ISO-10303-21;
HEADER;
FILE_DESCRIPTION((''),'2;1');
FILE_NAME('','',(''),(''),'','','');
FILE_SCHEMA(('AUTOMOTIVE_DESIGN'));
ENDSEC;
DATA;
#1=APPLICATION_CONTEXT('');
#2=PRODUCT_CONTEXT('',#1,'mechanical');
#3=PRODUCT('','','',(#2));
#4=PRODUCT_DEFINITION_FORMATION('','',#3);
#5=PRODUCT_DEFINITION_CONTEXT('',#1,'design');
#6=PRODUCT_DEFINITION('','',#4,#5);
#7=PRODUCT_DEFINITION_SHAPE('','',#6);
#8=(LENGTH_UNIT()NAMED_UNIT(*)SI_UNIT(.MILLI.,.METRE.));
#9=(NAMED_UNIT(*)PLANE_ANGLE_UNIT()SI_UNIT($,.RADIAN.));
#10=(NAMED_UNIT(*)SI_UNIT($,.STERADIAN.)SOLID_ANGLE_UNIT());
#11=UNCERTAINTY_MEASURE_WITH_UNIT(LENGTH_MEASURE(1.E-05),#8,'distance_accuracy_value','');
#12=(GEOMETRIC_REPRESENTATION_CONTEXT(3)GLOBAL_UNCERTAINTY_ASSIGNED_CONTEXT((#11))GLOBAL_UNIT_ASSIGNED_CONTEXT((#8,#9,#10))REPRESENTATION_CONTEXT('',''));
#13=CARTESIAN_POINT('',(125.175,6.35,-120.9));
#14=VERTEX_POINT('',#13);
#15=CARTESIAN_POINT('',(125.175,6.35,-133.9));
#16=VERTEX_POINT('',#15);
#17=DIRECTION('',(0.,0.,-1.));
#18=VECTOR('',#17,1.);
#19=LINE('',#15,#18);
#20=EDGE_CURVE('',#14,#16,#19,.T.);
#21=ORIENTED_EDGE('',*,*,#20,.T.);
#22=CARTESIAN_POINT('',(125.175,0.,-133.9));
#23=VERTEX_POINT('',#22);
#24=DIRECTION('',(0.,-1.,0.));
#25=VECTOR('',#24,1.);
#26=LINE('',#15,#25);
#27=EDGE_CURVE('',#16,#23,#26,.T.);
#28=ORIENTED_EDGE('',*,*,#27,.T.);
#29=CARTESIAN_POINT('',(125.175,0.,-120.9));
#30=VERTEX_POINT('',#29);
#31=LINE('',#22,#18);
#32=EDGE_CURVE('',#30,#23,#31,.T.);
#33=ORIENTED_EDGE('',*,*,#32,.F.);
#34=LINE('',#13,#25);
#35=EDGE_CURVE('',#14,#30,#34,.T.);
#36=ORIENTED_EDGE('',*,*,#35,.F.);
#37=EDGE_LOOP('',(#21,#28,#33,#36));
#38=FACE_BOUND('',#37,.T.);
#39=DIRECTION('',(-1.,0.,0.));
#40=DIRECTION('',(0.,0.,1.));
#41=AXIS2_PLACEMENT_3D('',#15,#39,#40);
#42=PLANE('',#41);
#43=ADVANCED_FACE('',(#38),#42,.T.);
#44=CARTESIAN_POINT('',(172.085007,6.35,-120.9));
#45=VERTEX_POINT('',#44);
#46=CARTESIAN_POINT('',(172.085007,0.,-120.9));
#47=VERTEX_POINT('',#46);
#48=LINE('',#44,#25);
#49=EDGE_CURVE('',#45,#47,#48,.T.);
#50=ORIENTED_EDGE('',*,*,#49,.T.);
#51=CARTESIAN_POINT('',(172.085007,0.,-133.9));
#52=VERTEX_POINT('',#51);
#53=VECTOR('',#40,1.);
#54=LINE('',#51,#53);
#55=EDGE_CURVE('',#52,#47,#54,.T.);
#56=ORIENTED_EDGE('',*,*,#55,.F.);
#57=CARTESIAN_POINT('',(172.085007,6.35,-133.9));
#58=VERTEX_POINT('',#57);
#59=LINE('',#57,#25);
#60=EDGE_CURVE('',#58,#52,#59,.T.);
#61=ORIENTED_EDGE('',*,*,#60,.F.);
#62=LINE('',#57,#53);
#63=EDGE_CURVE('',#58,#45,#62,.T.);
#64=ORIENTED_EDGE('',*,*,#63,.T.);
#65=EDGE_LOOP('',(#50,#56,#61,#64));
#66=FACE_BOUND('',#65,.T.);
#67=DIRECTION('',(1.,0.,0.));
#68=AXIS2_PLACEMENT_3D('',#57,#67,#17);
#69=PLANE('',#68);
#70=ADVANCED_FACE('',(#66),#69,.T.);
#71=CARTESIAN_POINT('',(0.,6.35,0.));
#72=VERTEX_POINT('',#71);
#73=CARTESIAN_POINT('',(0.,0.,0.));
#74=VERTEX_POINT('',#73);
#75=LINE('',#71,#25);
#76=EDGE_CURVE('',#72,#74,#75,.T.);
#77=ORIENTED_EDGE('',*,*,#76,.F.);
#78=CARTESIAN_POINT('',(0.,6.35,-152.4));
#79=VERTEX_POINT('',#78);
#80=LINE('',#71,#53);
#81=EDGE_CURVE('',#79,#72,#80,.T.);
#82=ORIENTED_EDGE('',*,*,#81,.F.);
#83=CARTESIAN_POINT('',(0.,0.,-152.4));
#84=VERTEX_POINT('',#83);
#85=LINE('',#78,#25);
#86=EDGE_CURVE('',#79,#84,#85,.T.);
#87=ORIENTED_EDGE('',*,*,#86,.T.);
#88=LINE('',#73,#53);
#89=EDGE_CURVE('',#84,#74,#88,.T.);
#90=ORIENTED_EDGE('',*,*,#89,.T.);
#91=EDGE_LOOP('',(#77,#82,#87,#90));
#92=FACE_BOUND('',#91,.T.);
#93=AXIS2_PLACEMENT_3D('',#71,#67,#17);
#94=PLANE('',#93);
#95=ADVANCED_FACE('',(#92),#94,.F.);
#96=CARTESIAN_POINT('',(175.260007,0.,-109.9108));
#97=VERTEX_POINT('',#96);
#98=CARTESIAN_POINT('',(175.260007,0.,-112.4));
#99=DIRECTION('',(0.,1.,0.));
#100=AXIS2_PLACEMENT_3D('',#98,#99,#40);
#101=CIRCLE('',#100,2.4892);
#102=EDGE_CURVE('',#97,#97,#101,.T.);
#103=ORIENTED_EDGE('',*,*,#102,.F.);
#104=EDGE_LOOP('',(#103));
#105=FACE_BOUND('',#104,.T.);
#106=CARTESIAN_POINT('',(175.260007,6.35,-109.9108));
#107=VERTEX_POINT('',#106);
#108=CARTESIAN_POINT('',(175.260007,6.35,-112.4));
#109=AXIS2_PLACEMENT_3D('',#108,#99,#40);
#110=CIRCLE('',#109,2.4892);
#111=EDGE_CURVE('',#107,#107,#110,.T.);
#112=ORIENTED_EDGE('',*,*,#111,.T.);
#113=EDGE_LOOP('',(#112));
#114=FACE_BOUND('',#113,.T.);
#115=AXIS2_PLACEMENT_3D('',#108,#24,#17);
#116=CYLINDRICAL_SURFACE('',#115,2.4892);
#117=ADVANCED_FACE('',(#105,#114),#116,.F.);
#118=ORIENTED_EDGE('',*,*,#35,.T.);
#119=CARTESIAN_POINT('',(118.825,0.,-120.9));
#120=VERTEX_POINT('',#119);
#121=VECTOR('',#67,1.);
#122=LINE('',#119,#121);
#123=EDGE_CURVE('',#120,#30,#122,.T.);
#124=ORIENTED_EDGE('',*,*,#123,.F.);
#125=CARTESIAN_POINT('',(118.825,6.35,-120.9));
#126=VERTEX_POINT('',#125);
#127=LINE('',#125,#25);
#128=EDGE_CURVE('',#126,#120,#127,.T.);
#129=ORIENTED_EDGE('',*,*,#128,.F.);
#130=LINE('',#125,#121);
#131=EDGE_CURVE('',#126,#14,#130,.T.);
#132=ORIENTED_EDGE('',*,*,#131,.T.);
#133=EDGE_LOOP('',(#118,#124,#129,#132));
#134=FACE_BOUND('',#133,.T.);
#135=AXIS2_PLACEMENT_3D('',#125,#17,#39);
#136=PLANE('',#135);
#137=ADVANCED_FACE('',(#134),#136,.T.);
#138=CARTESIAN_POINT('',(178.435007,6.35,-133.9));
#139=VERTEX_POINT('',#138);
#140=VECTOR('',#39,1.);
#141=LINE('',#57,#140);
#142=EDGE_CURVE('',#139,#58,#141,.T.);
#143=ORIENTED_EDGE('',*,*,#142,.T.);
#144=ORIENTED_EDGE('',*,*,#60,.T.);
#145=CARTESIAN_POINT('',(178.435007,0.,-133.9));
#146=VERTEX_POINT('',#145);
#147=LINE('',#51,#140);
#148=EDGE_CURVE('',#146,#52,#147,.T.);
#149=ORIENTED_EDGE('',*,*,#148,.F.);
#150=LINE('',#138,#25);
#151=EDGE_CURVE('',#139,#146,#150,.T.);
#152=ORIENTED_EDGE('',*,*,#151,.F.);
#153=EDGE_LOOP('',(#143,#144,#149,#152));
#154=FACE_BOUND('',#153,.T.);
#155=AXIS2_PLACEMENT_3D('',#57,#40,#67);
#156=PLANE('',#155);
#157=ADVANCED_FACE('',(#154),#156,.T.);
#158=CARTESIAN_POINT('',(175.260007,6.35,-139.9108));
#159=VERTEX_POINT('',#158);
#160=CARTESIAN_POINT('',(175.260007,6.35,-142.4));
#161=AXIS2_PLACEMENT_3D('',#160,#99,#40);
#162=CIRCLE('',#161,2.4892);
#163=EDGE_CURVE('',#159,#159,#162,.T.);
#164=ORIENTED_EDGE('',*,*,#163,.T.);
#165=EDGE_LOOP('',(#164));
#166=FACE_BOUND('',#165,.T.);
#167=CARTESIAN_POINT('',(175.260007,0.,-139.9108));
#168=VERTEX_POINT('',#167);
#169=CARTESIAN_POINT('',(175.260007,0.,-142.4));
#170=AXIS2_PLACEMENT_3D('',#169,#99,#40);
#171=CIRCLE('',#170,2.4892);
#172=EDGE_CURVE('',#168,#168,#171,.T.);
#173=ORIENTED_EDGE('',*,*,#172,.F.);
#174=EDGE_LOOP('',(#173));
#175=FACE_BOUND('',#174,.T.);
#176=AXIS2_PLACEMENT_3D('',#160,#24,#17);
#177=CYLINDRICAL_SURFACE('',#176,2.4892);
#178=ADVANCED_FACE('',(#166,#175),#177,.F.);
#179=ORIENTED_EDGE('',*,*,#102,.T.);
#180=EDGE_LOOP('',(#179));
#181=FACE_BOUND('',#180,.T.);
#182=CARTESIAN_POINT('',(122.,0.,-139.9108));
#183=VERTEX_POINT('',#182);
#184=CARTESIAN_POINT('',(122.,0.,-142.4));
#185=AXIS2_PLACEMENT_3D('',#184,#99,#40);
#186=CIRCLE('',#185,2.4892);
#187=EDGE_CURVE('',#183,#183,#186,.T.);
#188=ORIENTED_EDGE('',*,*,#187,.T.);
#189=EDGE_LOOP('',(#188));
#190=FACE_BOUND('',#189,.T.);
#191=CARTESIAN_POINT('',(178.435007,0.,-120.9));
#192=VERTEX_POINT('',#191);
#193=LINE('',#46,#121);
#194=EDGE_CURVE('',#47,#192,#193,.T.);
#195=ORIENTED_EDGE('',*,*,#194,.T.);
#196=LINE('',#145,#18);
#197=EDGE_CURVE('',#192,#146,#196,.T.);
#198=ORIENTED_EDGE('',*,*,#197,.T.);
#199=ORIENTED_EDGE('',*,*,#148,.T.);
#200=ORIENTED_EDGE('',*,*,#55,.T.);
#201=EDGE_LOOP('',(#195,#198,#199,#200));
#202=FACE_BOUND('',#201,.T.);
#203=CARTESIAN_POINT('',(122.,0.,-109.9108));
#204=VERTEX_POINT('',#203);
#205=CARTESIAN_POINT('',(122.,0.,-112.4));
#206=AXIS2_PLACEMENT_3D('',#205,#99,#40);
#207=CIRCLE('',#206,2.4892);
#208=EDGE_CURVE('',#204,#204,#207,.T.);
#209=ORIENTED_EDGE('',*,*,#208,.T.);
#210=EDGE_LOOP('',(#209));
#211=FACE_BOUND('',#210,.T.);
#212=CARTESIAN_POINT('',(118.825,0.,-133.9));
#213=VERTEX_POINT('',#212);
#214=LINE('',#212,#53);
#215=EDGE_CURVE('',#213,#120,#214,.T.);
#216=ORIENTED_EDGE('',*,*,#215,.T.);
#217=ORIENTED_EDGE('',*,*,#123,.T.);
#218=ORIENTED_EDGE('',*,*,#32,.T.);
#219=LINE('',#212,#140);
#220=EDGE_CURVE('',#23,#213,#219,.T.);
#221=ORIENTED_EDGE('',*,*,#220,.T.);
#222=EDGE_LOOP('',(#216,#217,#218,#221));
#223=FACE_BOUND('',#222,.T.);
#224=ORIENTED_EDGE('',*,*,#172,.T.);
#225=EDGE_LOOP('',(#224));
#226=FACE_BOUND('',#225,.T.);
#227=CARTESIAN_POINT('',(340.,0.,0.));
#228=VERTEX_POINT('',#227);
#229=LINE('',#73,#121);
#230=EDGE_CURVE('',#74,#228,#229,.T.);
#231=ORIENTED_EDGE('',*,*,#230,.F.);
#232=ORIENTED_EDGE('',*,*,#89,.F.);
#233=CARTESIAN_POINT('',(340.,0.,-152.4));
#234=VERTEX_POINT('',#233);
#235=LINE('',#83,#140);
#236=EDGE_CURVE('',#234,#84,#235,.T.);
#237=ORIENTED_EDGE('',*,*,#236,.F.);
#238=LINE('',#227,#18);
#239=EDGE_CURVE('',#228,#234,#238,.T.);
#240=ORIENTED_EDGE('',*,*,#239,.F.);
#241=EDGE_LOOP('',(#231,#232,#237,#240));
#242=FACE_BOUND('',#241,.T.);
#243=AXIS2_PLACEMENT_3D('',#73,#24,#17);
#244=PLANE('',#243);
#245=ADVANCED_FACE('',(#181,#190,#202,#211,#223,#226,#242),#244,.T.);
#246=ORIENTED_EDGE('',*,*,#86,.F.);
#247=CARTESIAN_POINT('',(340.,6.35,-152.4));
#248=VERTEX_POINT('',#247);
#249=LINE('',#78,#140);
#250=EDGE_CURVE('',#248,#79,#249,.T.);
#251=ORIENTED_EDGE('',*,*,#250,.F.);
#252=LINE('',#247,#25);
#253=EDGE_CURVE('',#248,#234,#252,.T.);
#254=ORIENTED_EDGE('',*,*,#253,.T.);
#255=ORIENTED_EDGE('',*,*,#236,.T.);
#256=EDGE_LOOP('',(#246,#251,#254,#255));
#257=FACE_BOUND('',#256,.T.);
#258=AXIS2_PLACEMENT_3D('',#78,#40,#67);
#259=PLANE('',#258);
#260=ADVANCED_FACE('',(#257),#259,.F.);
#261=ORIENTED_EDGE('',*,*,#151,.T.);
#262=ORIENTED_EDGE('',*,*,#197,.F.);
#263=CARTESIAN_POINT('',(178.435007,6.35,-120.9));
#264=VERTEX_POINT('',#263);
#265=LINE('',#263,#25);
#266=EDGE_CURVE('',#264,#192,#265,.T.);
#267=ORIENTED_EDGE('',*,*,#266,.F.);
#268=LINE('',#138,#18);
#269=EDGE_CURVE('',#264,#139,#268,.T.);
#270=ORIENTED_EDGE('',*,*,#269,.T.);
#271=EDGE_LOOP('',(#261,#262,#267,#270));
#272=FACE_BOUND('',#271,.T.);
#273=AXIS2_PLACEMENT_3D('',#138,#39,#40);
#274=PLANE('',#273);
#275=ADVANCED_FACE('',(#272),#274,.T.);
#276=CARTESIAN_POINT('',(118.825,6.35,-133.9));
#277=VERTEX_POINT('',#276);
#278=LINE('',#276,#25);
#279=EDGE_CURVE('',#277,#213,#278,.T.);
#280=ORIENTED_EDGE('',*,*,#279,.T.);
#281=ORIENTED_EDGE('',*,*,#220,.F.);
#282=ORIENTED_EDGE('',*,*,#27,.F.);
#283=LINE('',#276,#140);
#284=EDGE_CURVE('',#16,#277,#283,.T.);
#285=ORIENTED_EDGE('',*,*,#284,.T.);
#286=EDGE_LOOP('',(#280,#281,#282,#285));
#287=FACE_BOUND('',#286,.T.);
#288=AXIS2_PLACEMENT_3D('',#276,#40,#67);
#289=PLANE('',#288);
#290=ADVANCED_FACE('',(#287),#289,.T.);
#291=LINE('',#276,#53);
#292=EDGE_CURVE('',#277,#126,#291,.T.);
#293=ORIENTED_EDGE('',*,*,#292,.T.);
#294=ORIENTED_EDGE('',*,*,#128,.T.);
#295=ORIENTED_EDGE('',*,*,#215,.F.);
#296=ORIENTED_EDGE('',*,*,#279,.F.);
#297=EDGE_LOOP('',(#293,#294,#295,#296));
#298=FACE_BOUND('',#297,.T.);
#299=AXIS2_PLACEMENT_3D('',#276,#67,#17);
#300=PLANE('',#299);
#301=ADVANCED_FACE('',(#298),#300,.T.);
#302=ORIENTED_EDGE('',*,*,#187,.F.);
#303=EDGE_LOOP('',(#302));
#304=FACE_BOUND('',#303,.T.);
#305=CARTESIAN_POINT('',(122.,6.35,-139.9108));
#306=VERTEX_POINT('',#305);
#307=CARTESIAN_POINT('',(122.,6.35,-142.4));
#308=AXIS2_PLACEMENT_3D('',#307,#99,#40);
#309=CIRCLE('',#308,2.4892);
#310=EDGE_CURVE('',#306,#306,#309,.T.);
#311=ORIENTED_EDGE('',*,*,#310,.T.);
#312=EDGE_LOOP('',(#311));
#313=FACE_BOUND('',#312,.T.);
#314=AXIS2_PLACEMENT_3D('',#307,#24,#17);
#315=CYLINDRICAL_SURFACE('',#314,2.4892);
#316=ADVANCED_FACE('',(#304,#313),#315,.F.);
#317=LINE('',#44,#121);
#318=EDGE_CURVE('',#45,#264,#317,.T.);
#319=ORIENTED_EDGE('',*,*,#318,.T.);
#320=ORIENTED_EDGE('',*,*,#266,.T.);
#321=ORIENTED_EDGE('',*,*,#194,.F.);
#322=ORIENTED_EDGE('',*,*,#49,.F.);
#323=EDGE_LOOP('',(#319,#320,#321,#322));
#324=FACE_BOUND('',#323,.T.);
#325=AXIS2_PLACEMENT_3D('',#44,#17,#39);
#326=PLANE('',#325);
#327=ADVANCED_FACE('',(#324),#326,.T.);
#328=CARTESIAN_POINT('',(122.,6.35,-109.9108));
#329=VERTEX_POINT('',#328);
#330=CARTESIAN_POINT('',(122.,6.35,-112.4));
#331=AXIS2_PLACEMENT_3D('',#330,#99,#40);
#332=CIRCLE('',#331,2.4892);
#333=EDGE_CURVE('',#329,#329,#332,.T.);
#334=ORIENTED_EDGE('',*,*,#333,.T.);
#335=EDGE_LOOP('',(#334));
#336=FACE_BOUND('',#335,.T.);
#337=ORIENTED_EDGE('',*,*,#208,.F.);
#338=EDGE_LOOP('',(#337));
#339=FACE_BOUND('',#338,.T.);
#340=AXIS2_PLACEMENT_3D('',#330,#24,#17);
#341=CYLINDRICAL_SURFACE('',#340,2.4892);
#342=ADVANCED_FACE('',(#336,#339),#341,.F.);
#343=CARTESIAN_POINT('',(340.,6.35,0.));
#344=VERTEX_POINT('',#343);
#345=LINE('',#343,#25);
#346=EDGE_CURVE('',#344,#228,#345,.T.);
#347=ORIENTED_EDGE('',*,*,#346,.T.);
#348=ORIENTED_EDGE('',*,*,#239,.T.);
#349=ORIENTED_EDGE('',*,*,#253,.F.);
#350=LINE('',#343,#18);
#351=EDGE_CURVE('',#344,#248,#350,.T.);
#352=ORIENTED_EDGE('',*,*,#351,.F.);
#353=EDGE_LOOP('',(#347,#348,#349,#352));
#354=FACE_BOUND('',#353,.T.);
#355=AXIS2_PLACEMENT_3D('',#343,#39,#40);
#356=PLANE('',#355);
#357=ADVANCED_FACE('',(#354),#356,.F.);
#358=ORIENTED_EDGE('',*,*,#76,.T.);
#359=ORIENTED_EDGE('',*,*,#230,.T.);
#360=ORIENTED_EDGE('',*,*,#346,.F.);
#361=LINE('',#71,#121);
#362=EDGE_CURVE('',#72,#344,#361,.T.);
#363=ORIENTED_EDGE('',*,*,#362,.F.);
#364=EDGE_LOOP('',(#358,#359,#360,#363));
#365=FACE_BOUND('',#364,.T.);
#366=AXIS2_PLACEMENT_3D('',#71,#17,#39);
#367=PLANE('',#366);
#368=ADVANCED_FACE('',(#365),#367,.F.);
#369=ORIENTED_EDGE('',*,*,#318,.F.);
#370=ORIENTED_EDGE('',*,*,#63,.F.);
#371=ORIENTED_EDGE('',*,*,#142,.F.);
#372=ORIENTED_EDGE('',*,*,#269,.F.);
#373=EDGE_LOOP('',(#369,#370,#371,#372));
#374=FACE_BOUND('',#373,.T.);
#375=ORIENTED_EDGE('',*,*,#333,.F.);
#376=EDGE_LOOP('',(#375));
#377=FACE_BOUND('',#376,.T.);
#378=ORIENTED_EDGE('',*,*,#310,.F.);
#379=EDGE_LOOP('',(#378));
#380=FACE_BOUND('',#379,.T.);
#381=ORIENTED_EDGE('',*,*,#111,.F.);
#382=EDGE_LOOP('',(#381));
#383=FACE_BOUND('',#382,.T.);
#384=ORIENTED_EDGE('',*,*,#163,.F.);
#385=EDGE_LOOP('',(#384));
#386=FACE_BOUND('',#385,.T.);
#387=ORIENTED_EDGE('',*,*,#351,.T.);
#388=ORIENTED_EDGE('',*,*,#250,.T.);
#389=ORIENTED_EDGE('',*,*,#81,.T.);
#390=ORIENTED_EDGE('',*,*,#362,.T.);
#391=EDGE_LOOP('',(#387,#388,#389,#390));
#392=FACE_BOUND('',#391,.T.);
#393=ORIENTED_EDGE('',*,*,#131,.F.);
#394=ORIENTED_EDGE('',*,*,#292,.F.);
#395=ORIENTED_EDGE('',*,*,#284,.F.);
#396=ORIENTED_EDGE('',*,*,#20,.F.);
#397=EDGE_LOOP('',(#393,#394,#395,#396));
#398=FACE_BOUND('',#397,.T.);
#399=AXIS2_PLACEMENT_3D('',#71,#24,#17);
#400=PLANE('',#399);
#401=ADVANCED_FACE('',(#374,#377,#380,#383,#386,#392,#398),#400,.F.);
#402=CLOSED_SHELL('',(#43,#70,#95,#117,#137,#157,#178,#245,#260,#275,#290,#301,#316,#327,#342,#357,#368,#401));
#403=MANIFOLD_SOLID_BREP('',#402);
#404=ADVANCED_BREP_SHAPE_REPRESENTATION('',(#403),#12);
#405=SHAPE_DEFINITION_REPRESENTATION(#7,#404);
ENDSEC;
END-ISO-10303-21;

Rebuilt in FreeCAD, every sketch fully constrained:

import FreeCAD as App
import Part
import Sketcher

V = App.Vector
Q = App.Units.Quantity


def add_polygon(sketch, points):
    """Adds a closed chain of lines whose ends are joined by coincident constraints."""
    first, n = sketch.GeometryCount, len(points)
    for a, b in zip(points, points[1:] + points[:1]):
        sketch.addGeometry(Part.LineSegment(App.Vector(*a, 0), App.Vector(*b, 0)), False)
    for i in range(n):
        sketch.addConstraint(Sketcher.Constraint("Coincident", first + i, 2, first + (i + 1) % n, 1))

doc = App.newDocument("Part")
body = doc.addObject("PartDesign::Body", "Body")

sketch1 = doc.addObject("Sketcher::SketchObject", "Sketch")
body.addObject(sketch1)
sketch1.AttachmentSupport = (doc.XZ_Plane, [""])
sketch1.MapMode = "FlatFace"
add_polygon(sketch1, [(0, -152.4), (0, 0), (340, 0), (340, -152.4)])
sketch1.addGeometry(Part.Circle(V(122, -112.4, 0), V(0, 0, 1), 2.5), False)
add_polygon(sketch1, [(125.2, -120.9), (118.8, -120.9), (118.8, -133.9), (125.2, -133.9)])
sketch1.addGeometry(Part.Circle(V(175.3, -112.4, 0), V(0, 0, 1), 2.5), False)
add_polygon(sketch1, [(178.4, -120.9), (172.1, -120.9), (172.1, -133.9), (178.4, -133.9)])
sketch1.addGeometry(Part.Circle(V(122, -142.4, 0), V(0, 0, 1), 2.5), False)
sketch1.addGeometry(Part.Circle(V(175.3, -142.4, 0), V(0, 0, 1), 2.5), False)
sketch1.addConstraint([
    Sketcher.Constraint("Vertical", 0),
    Sketcher.Constraint("Horizontal", 1),
    Sketcher.Constraint("Vertical", 2),
    Sketcher.Constraint("Horizontal", 3),
    Sketcher.Constraint("Horizontal", 5),
    Sketcher.Constraint("Vertical", 6),
    Sketcher.Constraint("Horizontal", 7),
    Sketcher.Constraint("Vertical", 8),
    Sketcher.Constraint("Horizontal", 10),
    Sketcher.Constraint("Vertical", 11),
    Sketcher.Constraint("Horizontal", 12),
    Sketcher.Constraint("Vertical", 13),
    Sketcher.Constraint("Coincident", 0, 2, -1, 1),
    Sketcher.Constraint("Equal", 4, 9),
    Sketcher.Constraint("Equal", 9, 14),
    Sketcher.Constraint("Equal", 14, 15),
    Sketcher.Constraint("Horizontal", 4, 3, 9, 3),
    Sketcher.Constraint("Horizontal", 14, 3, 15, 3),
    Sketcher.Constraint("Horizontal", 8, 2, 10, 2),
    Sketcher.Constraint("Horizontal", 7, 2, 11, 2),
    Sketcher.Constraint("Vertical", 4, 3, 14, 3),
    Sketcher.Constraint("Vertical", 9, 3, 15, 3),
    Sketcher.Constraint("Equal", 7, 10),
    Sketcher.Constraint("DistanceY", 0, 1, 0, 2, Q("6 in")),
    Sketcher.Constraint("Diameter", 4, Q("0.196 in")),
    Sketcher.Constraint("DistanceX", 5, 2, 5, 1, Q("0.25 in")),
    Sketcher.Constraint("DistanceX", 5, 2, 4, 3, Q("0.125 in")),
    Sketcher.Constraint("DistanceX", 10, 2, 9, 3, Q("0.125 in")),
    Sketcher.Constraint("DistanceX", 1, 1, 1, 2, 340.0),
    Sketcher.Constraint("DistanceY", 6, 2, 6, 1, 13.0),
    Sketcher.Constraint("DistanceX", -1, 1, 4, 3, 122.0),
    Sketcher.Constraint("DistanceY", 4, 3, -1, 1, 112.4),
    Sketcher.Constraint("DistanceY", 14, 3, -1, 1, 142.4),
    Sketcher.Constraint("DistanceY", 5, 2, -1, 1, 120.9),
    Sketcher.Constraint("DistanceX", -1, 1, 9, 3, 175.260007),
])
pad1 = doc.addObject("PartDesign::Pad", "Pad")
body.addObject(pad1)
pad1.Profile = sketch1
pad1.Length = Q("0.25 in")
pad1.Reversed = True

doc.recompute()
